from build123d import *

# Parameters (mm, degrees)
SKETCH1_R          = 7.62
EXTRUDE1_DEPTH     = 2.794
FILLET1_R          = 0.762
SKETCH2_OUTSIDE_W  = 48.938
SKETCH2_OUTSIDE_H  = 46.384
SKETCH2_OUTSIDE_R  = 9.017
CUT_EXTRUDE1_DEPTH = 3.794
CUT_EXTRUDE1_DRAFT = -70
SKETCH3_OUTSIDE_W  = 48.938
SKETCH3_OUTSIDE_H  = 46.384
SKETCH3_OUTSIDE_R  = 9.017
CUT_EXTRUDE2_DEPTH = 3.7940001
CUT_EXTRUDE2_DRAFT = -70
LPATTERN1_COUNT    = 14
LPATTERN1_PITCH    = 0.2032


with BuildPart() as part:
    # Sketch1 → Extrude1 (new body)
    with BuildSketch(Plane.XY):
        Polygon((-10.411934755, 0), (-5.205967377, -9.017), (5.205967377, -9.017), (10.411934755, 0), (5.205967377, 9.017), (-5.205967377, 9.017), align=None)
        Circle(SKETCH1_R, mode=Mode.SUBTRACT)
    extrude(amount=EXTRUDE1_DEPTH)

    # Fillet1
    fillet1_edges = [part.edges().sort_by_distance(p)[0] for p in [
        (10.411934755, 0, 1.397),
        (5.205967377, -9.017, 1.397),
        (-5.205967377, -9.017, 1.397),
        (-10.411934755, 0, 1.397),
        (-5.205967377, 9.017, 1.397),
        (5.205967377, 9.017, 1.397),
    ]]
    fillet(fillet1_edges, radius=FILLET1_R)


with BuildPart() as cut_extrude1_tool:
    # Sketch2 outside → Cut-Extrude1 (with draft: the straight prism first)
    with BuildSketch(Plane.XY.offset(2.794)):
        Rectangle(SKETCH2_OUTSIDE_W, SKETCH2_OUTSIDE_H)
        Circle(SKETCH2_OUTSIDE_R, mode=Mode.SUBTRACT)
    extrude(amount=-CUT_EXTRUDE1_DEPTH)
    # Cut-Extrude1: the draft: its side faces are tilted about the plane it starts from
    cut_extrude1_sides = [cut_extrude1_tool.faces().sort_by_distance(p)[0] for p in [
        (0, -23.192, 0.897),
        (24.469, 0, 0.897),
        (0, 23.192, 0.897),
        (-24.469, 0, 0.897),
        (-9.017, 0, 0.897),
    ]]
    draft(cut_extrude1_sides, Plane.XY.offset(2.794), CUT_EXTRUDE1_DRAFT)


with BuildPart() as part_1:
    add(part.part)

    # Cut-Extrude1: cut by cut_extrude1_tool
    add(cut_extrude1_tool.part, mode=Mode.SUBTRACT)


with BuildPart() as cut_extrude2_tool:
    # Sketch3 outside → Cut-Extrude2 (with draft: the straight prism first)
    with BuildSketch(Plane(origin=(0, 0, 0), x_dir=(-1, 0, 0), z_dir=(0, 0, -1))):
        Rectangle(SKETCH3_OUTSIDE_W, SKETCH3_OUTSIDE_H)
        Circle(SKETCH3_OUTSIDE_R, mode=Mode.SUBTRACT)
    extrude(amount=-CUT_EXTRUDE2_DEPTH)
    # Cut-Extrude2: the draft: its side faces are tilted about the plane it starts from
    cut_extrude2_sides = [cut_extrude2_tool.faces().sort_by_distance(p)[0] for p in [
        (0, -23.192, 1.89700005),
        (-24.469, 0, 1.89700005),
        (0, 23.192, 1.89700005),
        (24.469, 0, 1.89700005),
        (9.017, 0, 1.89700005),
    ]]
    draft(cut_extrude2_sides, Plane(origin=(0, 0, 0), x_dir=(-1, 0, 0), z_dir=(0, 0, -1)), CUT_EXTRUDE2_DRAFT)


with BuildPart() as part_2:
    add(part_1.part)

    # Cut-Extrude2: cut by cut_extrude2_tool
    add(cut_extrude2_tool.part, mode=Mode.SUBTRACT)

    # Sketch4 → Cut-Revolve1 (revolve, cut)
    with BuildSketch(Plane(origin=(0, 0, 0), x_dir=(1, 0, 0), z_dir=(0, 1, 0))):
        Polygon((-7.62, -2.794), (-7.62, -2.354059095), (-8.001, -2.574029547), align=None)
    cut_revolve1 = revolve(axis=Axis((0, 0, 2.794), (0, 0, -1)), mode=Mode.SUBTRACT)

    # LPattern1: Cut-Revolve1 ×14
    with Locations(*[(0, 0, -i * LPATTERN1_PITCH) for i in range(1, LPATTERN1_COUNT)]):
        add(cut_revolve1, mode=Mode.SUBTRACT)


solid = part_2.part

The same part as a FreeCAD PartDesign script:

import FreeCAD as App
import Part
import Sketcher
from FreeCAD import Vector
Q = App.Units.Quantity


def edges_at(feature, points):
    """Names of the edges that pass closest to the given points."""
    edges = feature.Shape.Edges
    near = lambda p: min(range(len(edges)), key=lambda i: edges[i].distToShape(Part.Vertex(*p))[0])
    return sorted({f"Edge{near(p) + 1}" for p in points})


def faces_at(feature, points):
    """Names of the faces that lie closest to the given points."""
    faces = feature.Shape.Faces
    near = lambda p: min(range(len(faces)), key=lambda i: faces[i].distToShape(Part.Vertex(*p))[0])
    return sorted({f"Face{near(p) + 1}" for p in points})

doc = App.newDocument("Part")
body = doc.addObject("PartDesign::Body", "Body")

sketch1 = body.newObject("Sketcher::SketchObject", "Sketch")
sketch1.AttachmentSupport = (doc.getObject("XY_Plane"), [""])
sketch1.MapMode = "FlatFace"
sketch1.addGeometry([
    Part.LineSegment(Vector(-10.411935, 0, 0), Vector(-5.205967, -9.017, 0)),
    Part.LineSegment(Vector(-5.205967, -9.017, 0), Vector(5.205967, -9.017, 0)),
    Part.LineSegment(Vector(5.205967, -9.017, 0), Vector(10.411935, 0, 0)),
    Part.LineSegment(Vector(10.411935, 0, 0), Vector(5.205967, 9.017, 0)),
    Part.LineSegment(Vector(5.205967, 9.017, 0), Vector(-5.205967, 9.017, 0)),
    Part.LineSegment(Vector(-5.205967, 9.017, 0), Vector(-10.411935, 0, 0)),
    Part.Circle(Vector(0, 0, 0), Vector(0, 0, 1), 7.62),
], False)
sketch1.addConstraint([
    Sketcher.Constraint("Coincident", 0, 2, 1, 1),
    Sketcher.Constraint("Coincident", 1, 2, 2, 1),
    Sketcher.Constraint("Coincident", 2, 2, 3, 1),
    Sketcher.Constraint("Coincident", 3, 2, 4, 1),
    Sketcher.Constraint("Coincident", 4, 2, 5, 1),
    Sketcher.Constraint("Coincident", 5, 2, 0, 1),
    Sketcher.Constraint("Horizontal", 1),
    Sketcher.Constraint("Horizontal", 4),
    Sketcher.Constraint("Coincident", 6, 3, -1, 1),
    Sketcher.Constraint("Symmetric", 0, 2, 3, 2, -1, 1),
    Sketcher.Constraint("Symmetric", 2, 2, 5, 2, -1, 1),
    Sketcher.Constraint("PointOnObject", 2, 2, -1),
    Sketcher.Constraint("Parallel", 2, 5),
    Sketcher.Constraint("Vertical", 1, 2, 3, 2),
    Sketcher.Constraint("Diameter", 6, Q("0.6 in")),
    Sketcher.Constraint("Angle", 0, Q("-60 deg")),
    Sketcher.Constraint("DistanceY", 1, 2, 3, 2, Q("0.71 in")),
    Sketcher.Constraint("DistanceX", 1, 1, 1, 2, 10.411935),
])
pad1 = body.newObject("PartDesign::Pad", "Pad")
pad1.Profile = sketch1
pad1.Length = Q("0.11 in")
doc.recompute()

fillet = body.newObject("PartDesign::Fillet", "Fillet")
fillet.Base = (pad1, edges_at(pad1, [
    (10.412, 0, 1.397),
    (5.206, -9.017, 1.397),
    (-5.206, -9.017, 1.397),
    (-10.412, 0, 1.397),
    (-5.206, 9.017, 1.397),
    (5.206, 9.017, 1.397),
]))
fillet.Radius = Q("0.03 in")
body2 = doc.addObject("PartDesign::Body", "Body001")

sketch2 = body2.newObject("Sketcher::SketchObject", "Sketch001")
sketch2.AttachmentSupport = (doc.getObject("XY_Plane001"), [""])
sketch2.MapMode = "FlatFace"
sketch2.AttachmentOffset = App.Placement(Vector(0, 0, 0.11 * 25.4), App.Rotation())
sketch2.addGeometry([
    Part.LineSegment(Vector(-24.469, 23.192, 0), Vector(-24.469, -23.192, 0)),
    Part.LineSegment(Vector(-24.469, -23.192, 0), Vector(24.469, -23.192, 0)),
    Part.LineSegment(Vector(24.469, -23.192, 0), Vector(24.469, 23.192, 0)),
    Part.LineSegment(Vector(24.469, 23.192, 0), Vector(-24.469, 23.192, 0)),
    Part.Circle(Vector(0, 0, 0), Vector(0, 0, 1), 9.017),
], False)
sketch2.addConstraint([
    Sketcher.Constraint("Coincident", 0, 2, 1, 1),
    Sketcher.Constraint("Coincident", 1, 2, 2, 1),
    Sketcher.Constraint("Coincident", 2, 2, 3, 1),
    Sketcher.Constraint("Coincident", 3, 2, 0, 1),
    Sketcher.Constraint("Vertical", 0),
    Sketcher.Constraint("Horizontal", 1),
    Sketcher.Constraint("Vertical", 2),
    Sketcher.Constraint("Horizontal", 3),
    Sketcher.Constraint("Coincident", 4, 3, -1, 1),
    Sketcher.Constraint("Symmetric", 0, 2, 2, 2, -1, 1),
    Sketcher.Constraint("Diameter", 4, Q("0.71 in")),
    Sketcher.Constraint("DistanceX", 1, 1, 1, 2, 48.938),
    Sketcher.Constraint("DistanceY", 0, 2, 0, 1, 46.384),
])
pad2 = body2.newObject("PartDesign::Pad", "Pad001")
pad2.Profile = sketch2
pad2.Length = 3.794
pad2.Reversed = True
doc.recompute()

datumplane = body2.newObject("PartDesign::Plane", "DatumPlane")
datumplane.AttachmentSupport = (doc.getObject("XY_Plane001"), [""])
datumplane.MapMode = "FlatFace"
datumplane.AttachmentOffset = App.Placement(Vector(0, 0, 0.11 * 25.4), App.Rotation())
draft = body2.newObject("PartDesign::Draft", "Draft")
draft.Base = (pad2, faces_at(pad2, [
    (0, -23.192, 0.897),
    (24.469, 0, 0.897),
    (0, 23.192, 0.897),
    (-24.469, 0, 0.897),
    (-9.017, 0, 0.897),
]))
draft.NeutralPlane = (datumplane, [""])
draft.Angle = 70
draft.Reversed = True
doc.recompute()

boolean = body.newObject("PartDesign::Boolean", "Boolean")
boolean.Type = "Cut"
boolean.addObjects([body2])
body3 = doc.addObject("PartDesign::Body", "Body002")

sketch3 = body3.newObject("Sketcher::SketchObject", "Sketch002")
sketch3.AttachmentSupport = (doc.getObject("XY_Plane002"), [""])
sketch3.MapMode = "FlatFace"
sketch3.addGeometry([
    Part.LineSegment(Vector(24.469, 23.192, 0), Vector(24.469, -23.192, 0)),
    Part.LineSegment(Vector(24.469, -23.192, 0), Vector(-24.469, -23.192, 0)),
    Part.LineSegment(Vector(-24.469, -23.192, 0), Vector(-24.469, 23.192, 0)),
    Part.LineSegment(Vector(-24.469, 23.192, 0), Vector(24.469, 23.192, 0)),
    Part.Circle(Vector(0, 0, 0), Vector(0, 0, 1), 9.017),
], False)
sketch3.addConstraint([
    Sketcher.Constraint("Coincident", 0, 2, 1, 1),
    Sketcher.Constraint("Coincident", 1, 2, 2, 1),
    Sketcher.Constraint("Coincident", 2, 2, 3, 1),
    Sketcher.Constraint("Coincident", 3, 2, 0, 1),
    Sketcher.Constraint("Vertical", 0),
    Sketcher.Constraint("Horizontal", 1),
    Sketcher.Constraint("Vertical", 2),
    Sketcher.Constraint("Horizontal", 3),
    Sketcher.Constraint("Coincident", 4, 3, -1, 1),
    Sketcher.Constraint("Symmetric", 0, 2, 2, 2, -1, 1),
    Sketcher.Constraint("Diameter", 4, Q("0.71 in")),
    Sketcher.Constraint("DistanceX", 1, 2, 1, 1, 48.938),
    Sketcher.Constraint("DistanceY", 0, 2, 0, 1, 46.384),
])
pad3 = body3.newObject("PartDesign::Pad", "Pad002")
pad3.Profile = sketch3
pad3.Length = 3.794
doc.recompute()

draft2 = body3.newObject("PartDesign::Draft", "Draft001")
draft2.Base = (pad3, faces_at(pad3, [
    (0, -23.192, 1.897),
    (-24.469, 0, 1.897),
    (0, 23.192, 1.897),
    (24.469, 0, 1.897),
    (9.017, 0, 1.897),
]))
draft2.NeutralPlane = (doc.getObject("XY_Plane002"), [""])
draft2.Angle = 70
draft2.Reversed = False
doc.recompute()

boolean2 = body.newObject("PartDesign::Boolean", "Boolean001")
boolean2.Type = "Cut"
boolean2.addObjects([body3])

sketch4 = body.newObject("Sketcher::SketchObject", "Sketch003")
sketch4.AttachmentSupport = (doc.getObject("XZ_Plane"), [""])
sketch4.MapMode = "FlatFace"
sketch4.addGeometry([
    Part.LineSegment(Vector(-7.62, 2.794, 0), Vector(-7.62, 2.354059, 0)),
    Part.LineSegment(Vector(-7.62, 2.354059, 0), Vector(-8.001, 2.57403, 0)),
    Part.LineSegment(Vector(-8.001, 2.57403, 0), Vector(-7.62, 2.794, 0)),
], False)
sketch4.addConstraint([
    Sketcher.Constraint("Coincident", 0, 2, 1, 1),
    Sketcher.Constraint("Coincident", 1, 2, 2, 1),
    Sketcher.Constraint("Coincident", 2, 2, 0, 1),
    Sketcher.Constraint("Vertical", 0),
    Sketcher.Constraint("Equal", 1, 2),
    Sketcher.Constraint("Angle", 1, Q("150 deg")),
    Sketcher.Constraint("DistanceX", 0, 2, -1, 1, Q("0.3 in")),
    Sketcher.Constraint("DistanceY", -1, 1, 2, 2, Q("0.11 in")),
    Sketcher.Constraint("DistanceX", 1, 2, -1, 1, Q("0.315 in")),
])
groove = body.newObject("PartDesign::Groove", "Groove")
groove.Profile = sketch4
groove.ReferenceAxis = (sketch4, ["V_Axis"])
groove.Angle = 360
doc.recompute()

linearpattern = body.newObject("PartDesign::LinearPattern", "LinearPattern")
linearpattern.Originals = [groove]
linearpattern.Direction = (doc.getObject("Z_Axis"), [""])
linearpattern.Mode = "offset"
linearpattern.Offset = Q("0.008 in")
linearpattern.Occurrences = 14
linearpattern.Reversed = True
body.Tip = linearpattern

doc.recompute()
